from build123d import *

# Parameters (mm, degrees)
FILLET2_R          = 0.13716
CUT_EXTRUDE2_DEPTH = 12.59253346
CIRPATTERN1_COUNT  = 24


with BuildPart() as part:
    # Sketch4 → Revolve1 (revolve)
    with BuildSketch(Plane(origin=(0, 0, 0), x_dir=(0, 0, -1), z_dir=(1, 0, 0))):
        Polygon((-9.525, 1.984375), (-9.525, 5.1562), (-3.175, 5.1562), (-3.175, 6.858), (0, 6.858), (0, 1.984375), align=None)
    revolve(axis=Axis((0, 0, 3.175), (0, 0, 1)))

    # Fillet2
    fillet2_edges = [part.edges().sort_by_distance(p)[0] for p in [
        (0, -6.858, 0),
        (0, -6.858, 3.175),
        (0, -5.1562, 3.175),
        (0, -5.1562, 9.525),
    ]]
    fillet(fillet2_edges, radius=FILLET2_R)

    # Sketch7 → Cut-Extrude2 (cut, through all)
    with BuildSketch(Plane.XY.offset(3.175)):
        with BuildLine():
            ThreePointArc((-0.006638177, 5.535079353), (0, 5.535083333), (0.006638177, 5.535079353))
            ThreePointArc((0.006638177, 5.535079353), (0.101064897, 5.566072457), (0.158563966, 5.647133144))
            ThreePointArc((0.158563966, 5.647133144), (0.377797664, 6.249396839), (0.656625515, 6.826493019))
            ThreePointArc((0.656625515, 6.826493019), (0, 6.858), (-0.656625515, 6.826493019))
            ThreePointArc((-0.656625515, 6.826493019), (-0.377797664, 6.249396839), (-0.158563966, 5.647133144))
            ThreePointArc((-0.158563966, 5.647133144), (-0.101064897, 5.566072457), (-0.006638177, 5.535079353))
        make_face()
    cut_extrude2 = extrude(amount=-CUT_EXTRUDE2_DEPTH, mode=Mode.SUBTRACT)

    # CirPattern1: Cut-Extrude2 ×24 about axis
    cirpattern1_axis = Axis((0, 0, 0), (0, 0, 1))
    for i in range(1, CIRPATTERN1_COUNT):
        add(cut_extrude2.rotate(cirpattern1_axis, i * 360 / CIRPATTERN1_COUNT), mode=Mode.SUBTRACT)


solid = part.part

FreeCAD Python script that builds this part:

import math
import FreeCAD as App
import Part
import Sketcher
Q = App.Units.Quantity


def edges_at(feature, points):
    """Names of the edges that pass closest to the given points."""
    edges = feature.Shape.Edges
    near = lambda p: min(range(len(edges)), key=lambda i: edges[i].distToShape(Part.Vertex(*p))[0])
    return sorted({f"Edge{near(p) + 1}" for p in points})

doc = App.newDocument("Part")
body = doc.addObject("PartDesign::Body", "Body")

# Sketch on YZ plane
sketch1 = doc.addObject("Sketcher::SketchObject", "Sketch")
body.addObject(sketch1)
sketch1.AttachmentSupport = (doc.YZ_Plane, [""])
sketch1.MapMode = "FlatFace"
sketch1.addGeometry([
    Part.LineSegment(App.Vector(5.2, 9.5, 0), App.Vector(2, 9.5, 0)),  # 0
    Part.LineSegment(App.Vector(2, 9.5, 0), App.Vector(2, 0, 0)),  # 1
    Part.LineSegment(App.Vector(2, 0, 0), App.Vector(6.9, 0, 0)),  # 2
    Part.LineSegment(App.Vector(6.9, 0, 0), App.Vector(6.9, 3.2, 0)),  # 3
    Part.LineSegment(App.Vector(6.9, 3.2, 0), App.Vector(5.2, 3.2, 0)),  # 4
    Part.LineSegment(App.Vector(5.2, 3.2, 0), App.Vector(5.2, 9.5, 0)),  # 5
], False)
sketch1.addConstraint([
    Sketcher.Constraint("Coincident", 0, 2, 1, 1),
    Sketcher.Constraint("Coincident", 1, 2, 2, 1),
    Sketcher.Constraint("Coincident", 2, 2, 3, 1),
    Sketcher.Constraint("Coincident", 3, 2, 4, 1),
    Sketcher.Constraint("Coincident", 4, 2, 5, 1),
    Sketcher.Constraint("Coincident", 5, 2, 0, 1),
    Sketcher.Constraint("Horizontal", 0),
    Sketcher.Constraint("Vertical", 1),
    Sketcher.Constraint("Horizontal", 2),
    Sketcher.Constraint("Vertical", 3),
    Sketcher.Constraint("Horizontal", 4),
    Sketcher.Constraint("Vertical", 5),
    Sketcher.Constraint("PointOnObject", 1, 2, -1),
    Sketcher.Constraint("DistanceY", 5, 1, 5, 2, Q("0.25 in")),
    Sketcher.Constraint("DistanceX", 4, 2, 4, 1, Q("0.067 in")),
    Sketcher.Constraint("DistanceY", 1, 2, 1, 1, Q("0.375 in")),
    Sketcher.Constraint("DistanceX", -1, 1, 2, 2, Q("0.27 in")),
    Sketcher.Constraint("DistanceX", -1, 1, 0, 2, Q("0.078125 in")),
])
revolution = doc.addObject("PartDesign::Revolution", "Revolution")
body.addObject(revolution)
revolution.Profile = sketch1
revolution.ReferenceAxis = (sketch1, ["V_Axis"])
revolution.Angle = 360
doc.recompute()

fillet = doc.addObject("PartDesign::Fillet", "Fillet")
body.addObject(fillet)
fillet.Base = (revolution, edges_at(revolution, [
    (0, -6.858, 0),
    (0, -6.858, 3.175),
    (0, -5.156, 3.175),
    (0, -5.156, 9.525),
]))
fillet.Radius = Q("0.0054 in")

# Sketch on XY plane
sketch2 = doc.addObject("Sketcher::SketchObject", "Sketch001")
body.addObject(sketch2)
sketch2.AttachmentSupport = (doc.XY_Plane, [""])
sketch2.MapMode = "FlatFace"
sketch2.AttachmentOffset = App.Placement(App.Vector(0, 0, 0.125 * 25.4), App.Rotation())
sketch2.addGeometry([
    Part.ArcOfCircle(Part.Circle(App.Vector(0, -0.001, 0), App.Vector(0, 0, 1), 5.536), math.radians(89.93), math.radians(90.07)),  # 0
    Part.ArcOfCircle(Part.Circle(App.Vector(0.007, 5.694, 0), App.Vector(0, 0, 1), 0.159), math.radians(-90), math.radians(-17)),  # 1
    Part.ArcOfCircle(Part.Circle(App.Vector(6.228, 3.779, 0), App.Vector(0, 0, 1), 6.35), math.radians(151.32), math.radians(162.89)),  # 2
    Part.ArcOfCircle(Part.Circle(App.Vector(0, 0, 0), App.Vector(0, 0, 1), 6.858), math.radians(84.51), math.radians(95.49)),  # 3
    Part.ArcOfCircle(Part.Circle(App.Vector(-6.228, 3.779, 0), App.Vector(0, 0, 1), 6.35), math.radians(17.11), math.radians(28.68)),  # 4
    Part.ArcOfCircle(Part.Circle(App.Vector(-0.007, 5.694, 0), App.Vector(0, 0, 1), 0.159), math.radians(-163), math.radians(-90)),  # 5
], False)
sketch2.addConstraint([
    Sketcher.Constraint("Tangent", 0, 1, 1, 1),
    Sketcher.Constraint("Tangent", 1, 2, 2, 2),
    Sketcher.Constraint("Coincident", 2, 1, 3, 1),
    Sketcher.Constraint("Coincident", 3, 2, 4, 2),
    Sketcher.Constraint("Tangent", 4, 1, 5, 1),
    Sketcher.Constraint("Tangent", 5, 2, 0, 2),
    Sketcher.Constraint("Coincident", 3, 3, -1, 1),
    Sketcher.Constraint("Equal", 2, 4),
    Sketcher.Constraint("Equal", 1, 5),
    Sketcher.Constraint("Symmetric", 2, 3, 4, 3, -2),
    Sketcher.Constraint("PointOnObject", 0, 3, -2),
    Sketcher.Constraint("Radius", 2, Q("0.25 in")),
    Sketcher.Constraint("Radius", 3, Q("0.27 in")),
    Sketcher.Constraint("Radius", 1, 0.158762),
    Sketcher.Constraint("Radius", 0, 5.535855),
    Sketcher.Constraint("DistanceX", 0, 1, 2, 3, 6.220899),
    Sketcher.Constraint("DistanceX", -1, 1, 1, 3, 0.006829),
    Sketcher.Constraint("DistanceY", -1, 1, 1, 3, 5.693841),
])
pocket1 = doc.addObject("PartDesign::Pocket", "Pocket")
body.addObject(pocket1)
pocket1.Profile = sketch2
pocket1.Type = "ThroughAll"
doc.recompute()

polarpattern = doc.addObject("PartDesign::PolarPattern", "PolarPattern")
body.addObject(polarpattern)
polarpattern.Originals = [pocket1]
polarpattern.Axis = (doc.Z_Axis, [""])
polarpattern.Angle = 360
polarpattern.Occurrences = 24
body.Tip = polarpattern

doc.recompute()
